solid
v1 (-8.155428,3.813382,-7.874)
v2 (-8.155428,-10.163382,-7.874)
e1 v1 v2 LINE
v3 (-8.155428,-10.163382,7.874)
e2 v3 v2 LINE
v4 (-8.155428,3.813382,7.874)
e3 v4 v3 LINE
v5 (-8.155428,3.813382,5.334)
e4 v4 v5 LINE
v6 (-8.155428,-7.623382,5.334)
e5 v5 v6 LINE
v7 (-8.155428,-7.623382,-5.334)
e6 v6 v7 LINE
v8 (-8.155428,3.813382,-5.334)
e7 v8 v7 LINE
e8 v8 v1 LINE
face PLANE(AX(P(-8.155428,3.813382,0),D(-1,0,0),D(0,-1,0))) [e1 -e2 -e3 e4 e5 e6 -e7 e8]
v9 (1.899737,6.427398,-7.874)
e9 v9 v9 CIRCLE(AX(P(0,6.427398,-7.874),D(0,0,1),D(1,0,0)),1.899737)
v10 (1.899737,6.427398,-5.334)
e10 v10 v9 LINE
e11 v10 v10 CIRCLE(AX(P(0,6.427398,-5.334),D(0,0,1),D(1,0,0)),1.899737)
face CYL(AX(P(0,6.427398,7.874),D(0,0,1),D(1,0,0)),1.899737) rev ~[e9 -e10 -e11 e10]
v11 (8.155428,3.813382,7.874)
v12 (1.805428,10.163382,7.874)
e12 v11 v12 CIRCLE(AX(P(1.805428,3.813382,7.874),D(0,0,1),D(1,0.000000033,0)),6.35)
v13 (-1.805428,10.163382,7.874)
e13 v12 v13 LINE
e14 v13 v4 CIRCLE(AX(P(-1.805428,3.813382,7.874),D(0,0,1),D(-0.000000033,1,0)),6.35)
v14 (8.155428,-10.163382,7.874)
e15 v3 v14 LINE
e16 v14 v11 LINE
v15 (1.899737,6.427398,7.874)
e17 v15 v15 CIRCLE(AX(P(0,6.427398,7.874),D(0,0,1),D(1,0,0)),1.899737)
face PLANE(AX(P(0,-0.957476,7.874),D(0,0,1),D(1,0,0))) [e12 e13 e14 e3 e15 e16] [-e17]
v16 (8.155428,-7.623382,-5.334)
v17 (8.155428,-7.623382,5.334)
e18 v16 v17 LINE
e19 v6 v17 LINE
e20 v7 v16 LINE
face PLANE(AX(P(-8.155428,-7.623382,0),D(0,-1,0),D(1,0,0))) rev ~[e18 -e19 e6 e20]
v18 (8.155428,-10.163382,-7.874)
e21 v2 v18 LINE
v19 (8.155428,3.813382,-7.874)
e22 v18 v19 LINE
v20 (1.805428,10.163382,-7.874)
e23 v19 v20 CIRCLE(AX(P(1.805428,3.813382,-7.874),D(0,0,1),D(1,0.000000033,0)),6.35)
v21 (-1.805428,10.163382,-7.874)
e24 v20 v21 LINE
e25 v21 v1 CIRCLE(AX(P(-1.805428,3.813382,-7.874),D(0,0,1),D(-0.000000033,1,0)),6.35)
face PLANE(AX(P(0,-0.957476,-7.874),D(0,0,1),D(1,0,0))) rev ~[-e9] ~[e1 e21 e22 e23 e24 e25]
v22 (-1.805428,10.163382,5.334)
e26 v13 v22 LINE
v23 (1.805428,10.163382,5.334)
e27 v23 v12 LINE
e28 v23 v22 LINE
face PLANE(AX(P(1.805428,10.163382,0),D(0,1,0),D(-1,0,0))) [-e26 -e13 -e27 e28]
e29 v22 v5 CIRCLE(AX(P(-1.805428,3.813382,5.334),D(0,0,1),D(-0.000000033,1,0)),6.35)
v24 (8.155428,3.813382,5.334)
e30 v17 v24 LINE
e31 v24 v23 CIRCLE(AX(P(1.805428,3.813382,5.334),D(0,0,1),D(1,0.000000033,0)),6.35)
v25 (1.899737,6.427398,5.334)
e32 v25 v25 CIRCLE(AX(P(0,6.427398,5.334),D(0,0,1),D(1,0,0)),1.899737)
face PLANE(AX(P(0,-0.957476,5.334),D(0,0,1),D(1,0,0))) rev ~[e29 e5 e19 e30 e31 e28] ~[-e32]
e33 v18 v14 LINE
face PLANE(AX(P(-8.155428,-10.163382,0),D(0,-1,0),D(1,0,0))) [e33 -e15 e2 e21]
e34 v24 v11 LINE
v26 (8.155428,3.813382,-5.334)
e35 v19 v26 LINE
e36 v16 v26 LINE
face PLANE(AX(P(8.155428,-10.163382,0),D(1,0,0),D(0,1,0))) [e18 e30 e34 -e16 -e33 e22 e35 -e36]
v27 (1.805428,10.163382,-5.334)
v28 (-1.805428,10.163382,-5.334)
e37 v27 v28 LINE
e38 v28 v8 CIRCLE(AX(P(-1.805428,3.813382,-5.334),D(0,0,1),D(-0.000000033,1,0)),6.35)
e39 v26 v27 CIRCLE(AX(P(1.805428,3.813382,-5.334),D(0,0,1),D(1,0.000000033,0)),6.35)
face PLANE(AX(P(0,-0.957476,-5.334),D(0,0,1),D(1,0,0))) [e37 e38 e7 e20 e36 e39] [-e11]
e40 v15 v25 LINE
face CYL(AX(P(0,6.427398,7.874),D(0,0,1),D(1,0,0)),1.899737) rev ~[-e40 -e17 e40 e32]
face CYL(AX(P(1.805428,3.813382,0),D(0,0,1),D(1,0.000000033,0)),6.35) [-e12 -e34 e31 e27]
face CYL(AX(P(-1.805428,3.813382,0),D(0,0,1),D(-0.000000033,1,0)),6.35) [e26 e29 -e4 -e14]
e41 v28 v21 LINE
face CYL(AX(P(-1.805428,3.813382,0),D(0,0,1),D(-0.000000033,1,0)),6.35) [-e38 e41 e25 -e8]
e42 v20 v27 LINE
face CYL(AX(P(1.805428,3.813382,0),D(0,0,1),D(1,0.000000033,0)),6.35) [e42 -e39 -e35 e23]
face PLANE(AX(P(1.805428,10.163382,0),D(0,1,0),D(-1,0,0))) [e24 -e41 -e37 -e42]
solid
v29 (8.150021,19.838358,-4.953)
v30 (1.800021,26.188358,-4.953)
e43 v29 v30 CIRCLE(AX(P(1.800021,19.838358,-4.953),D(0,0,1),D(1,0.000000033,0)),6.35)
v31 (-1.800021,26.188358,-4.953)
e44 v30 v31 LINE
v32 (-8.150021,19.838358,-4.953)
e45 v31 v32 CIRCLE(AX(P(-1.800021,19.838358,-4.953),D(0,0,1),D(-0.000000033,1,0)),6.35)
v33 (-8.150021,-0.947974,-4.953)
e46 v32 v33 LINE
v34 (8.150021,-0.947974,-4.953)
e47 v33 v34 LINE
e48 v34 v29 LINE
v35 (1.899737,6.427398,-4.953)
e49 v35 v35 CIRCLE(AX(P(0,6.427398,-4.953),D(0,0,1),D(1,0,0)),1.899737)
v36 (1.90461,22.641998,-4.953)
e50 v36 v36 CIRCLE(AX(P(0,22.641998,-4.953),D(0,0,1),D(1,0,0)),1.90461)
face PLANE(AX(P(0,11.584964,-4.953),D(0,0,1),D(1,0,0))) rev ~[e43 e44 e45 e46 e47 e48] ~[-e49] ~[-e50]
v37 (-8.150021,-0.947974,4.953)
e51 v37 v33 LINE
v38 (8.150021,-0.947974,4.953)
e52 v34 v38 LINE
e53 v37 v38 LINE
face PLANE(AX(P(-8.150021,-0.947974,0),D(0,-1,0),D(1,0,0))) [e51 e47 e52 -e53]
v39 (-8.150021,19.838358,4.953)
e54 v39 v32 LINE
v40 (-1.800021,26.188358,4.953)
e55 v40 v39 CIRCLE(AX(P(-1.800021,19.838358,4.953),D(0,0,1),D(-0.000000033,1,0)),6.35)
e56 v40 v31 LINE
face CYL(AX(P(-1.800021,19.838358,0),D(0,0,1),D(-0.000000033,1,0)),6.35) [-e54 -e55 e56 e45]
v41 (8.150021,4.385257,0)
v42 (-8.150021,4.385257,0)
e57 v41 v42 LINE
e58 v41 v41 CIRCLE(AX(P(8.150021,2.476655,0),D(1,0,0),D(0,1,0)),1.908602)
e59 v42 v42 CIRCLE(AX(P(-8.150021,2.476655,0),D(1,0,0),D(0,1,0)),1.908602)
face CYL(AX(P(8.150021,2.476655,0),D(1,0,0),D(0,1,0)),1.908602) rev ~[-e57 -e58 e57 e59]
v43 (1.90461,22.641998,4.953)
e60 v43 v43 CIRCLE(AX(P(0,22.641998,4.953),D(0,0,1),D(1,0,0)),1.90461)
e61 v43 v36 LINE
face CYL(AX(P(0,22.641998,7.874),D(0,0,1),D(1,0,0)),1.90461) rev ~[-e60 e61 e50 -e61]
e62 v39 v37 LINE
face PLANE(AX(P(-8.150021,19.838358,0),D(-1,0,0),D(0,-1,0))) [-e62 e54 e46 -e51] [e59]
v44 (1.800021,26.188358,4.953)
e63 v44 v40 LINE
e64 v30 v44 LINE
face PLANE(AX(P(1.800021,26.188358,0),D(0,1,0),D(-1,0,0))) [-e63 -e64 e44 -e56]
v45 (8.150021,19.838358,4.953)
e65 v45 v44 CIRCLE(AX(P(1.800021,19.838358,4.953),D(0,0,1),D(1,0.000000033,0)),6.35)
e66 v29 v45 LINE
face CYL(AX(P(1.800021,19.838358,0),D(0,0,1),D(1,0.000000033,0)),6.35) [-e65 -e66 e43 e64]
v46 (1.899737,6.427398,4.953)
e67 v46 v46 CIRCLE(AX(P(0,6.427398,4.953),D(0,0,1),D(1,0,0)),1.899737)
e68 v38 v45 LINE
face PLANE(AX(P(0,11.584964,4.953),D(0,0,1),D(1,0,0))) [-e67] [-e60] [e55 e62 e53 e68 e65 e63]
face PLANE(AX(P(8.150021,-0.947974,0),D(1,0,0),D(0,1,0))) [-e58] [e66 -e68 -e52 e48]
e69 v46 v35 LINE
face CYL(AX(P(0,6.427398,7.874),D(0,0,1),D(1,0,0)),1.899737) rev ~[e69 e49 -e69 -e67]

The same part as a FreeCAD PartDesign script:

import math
import FreeCAD as App
import Part
import Sketcher
Q = App.Units.Quantity


def faces_at(feature, points):
    """Names of the faces that lie closest to the given points."""
    faces = feature.Shape.Faces
    near = lambda p: min(range(len(faces)), key=lambda i: faces[i].distToShape(Part.Vertex(*p))[0])
    return sorted({f"Face{near(p) + 1}" for p in points})

doc = App.newDocument("Part")
body = doc.addObject("PartDesign::Body", "Body")

# Sketch on XY plane
sketch1 = body.newObject("Sketcher::SketchObject", "Sketch")
sketch1.AttachmentSupport = (doc.getObject("XY_Plane"), [""])
sketch1.MapMode = "FlatFace"
sketch1.addGeometry([
    Part.LineSegment(App.Vector(-8.2, -10.2, 0), App.Vector(8.2, -10.2, 0)),  # 0
    Part.LineSegment(App.Vector(8.2, -10.2, 0), App.Vector(8.2, 3.8, 0)),  # 1
    Part.ArcOfCircle(Part.Circle(App.Vector(1.8, 3.8, 0), App.Vector(0, 0, 1), 6.4), math.radians(0), math.radians(90)),  # 2
    Part.LineSegment(App.Vector(1.8, 10.2, 0), App.Vector(-1.8, 10.2, 0)),  # 3
    Part.ArcOfCircle(Part.Circle(App.Vector(-1.8, 3.8, 0), App.Vector(0, 0, 1), 6.4), math.radians(90), math.radians(180)),  # 4
    Part.LineSegment(App.Vector(-8.2, 3.8, 0), App.Vector(-8.2, -10.2, 0)),  # 5
], False)
sketch1.addConstraint([
    Sketcher.Constraint("Coincident", 0, 2, 1, 1),
    Sketcher.Constraint("Tangent", 1, 2, 2, 1),
    Sketcher.Constraint("Tangent", 2, 2, 3, 1),
    Sketcher.Constraint("Tangent", 3, 2, 4, 1),
    Sketcher.Constraint("Tangent", 4, 2, 5, 1),
    Sketcher.Constraint("Coincident", 5, 2, 0, 1),
    Sketcher.Constraint("Horizontal", 0),
    Sketcher.Constraint("Vertical", 1),
    Sketcher.Constraint("Horizontal", 3),
    Sketcher.Constraint("Vertical", 5),
    Sketcher.Constraint("Equal", 2, 4),
    Sketcher.Constraint("Radius", 2, Q("0.25 in")),
    Sketcher.Constraint("DistanceX", 0, 1, 0, 2, 16.310856),
    Sketcher.Constraint("DistanceY", 1, 1, 1, 2, 13.976764),
    Sketcher.Constraint("DistanceY", -1, 1, 2, 3, 3.813382),
    Sketcher.Constraint("DistanceX", -1, 1, 2, 2, 1.805428),
])
pad1 = body.newObject("PartDesign::Pad", "Pad")
pad1.Profile = sketch1
pad1.Type = "TwoLengths"
pad1.Length = Q("0.31 in")
pad1.Length2 = Q("0.31 in")
doc.recompute()

thickness = body.newObject("PartDesign::Thickness", "Thickness")
thickness.Base = (pad1, faces_at(pad1, [
    (8.155, -3.175, 0),
    (6.296, 8.304, 0),
    (0, 10.163, 0),
    (-6.296, 8.304, 0),
    (-8.155, -3.175, 0),
]))
thickness.Value = Q("0.1 in")
thickness.Reversed = True
thickness.Join = "Arc"
body2 = doc.addObject("PartDesign::Body", "Body001")

# Sketch on XY plane
sketch2 = body2.newObject("Sketcher::SketchObject", "Sketch001")
sketch2.AttachmentSupport = (doc.getObject("XY_Plane001"), [""])
sketch2.MapMode = "FlatFace"
sketch2.addGeometry([
    Part.LineSegment(App.Vector(-8.2, -0.9, 0), App.Vector(8.2, -0.9, 0)),  # 0
    Part.LineSegment(App.Vector(8.2, -0.9, 0), App.Vector(8.2, 19.8, 0)),  # 1
    Part.ArcOfCircle(Part.Circle(App.Vector(1.8, 19.8, 0), App.Vector(0, 0, 1), 6.4), math.radians(0), math.radians(90)),  # 2
    Part.LineSegment(App.Vector(1.8, 26.2, 0), App.Vector(-1.8, 26.2, 0)),  # 3
    Part.ArcOfCircle(Part.Circle(App.Vector(-1.8, 19.8, 0), App.Vector(0, 0, 1), 6.4), math.radians(90), math.radians(180)),  # 4
    Part.LineSegment(App.Vector(-8.2, 19.8, 0), App.Vector(-8.2, -0.9, 0)),  # 5
], False)
sketch2.addConstraint([
    Sketcher.Constraint("Coincident", 0, 2, 1, 1),
    Sketcher.Constraint("Tangent", 1, 2, 2, 1),
    Sketcher.Constraint("Tangent", 2, 2, 3, 1),
    Sketcher.Constraint("Tangent", 3, 2, 4, 1),
    Sketcher.Constraint("Tangent", 4, 2, 5, 1),
    Sketcher.Constraint("Coincident", 5, 2, 0, 1),
    Sketcher.Constraint("Horizontal", 0),
    Sketcher.Constraint("Vertical", 1),
    Sketcher.Constraint("Horizontal", 3),
    Sketcher.Constraint("Vertical", 5),
    Sketcher.Constraint("Equal", 2, 4),
    Sketcher.Constraint("Radius", 2, Q("0.25 in")),
    Sketcher.Constraint("DistanceY", 1, 1, 1, 2, 20.786332),
    Sketcher.Constraint("DistanceX", 0, 1, 0, 2, 16.300042),
    Sketcher.Constraint("DistanceX", -1, 1, 2, 3, 1.800021),
    Sketcher.Constraint("DistanceY", -1, 1, 3, 2, 26.188358),
])
pad2 = body2.newObject("PartDesign::Pad", "Pad001")
pad2.Profile = sketch2
pad2.Type = "TwoLengths"
pad2.Length = Q("0.195 in")
pad2.Length2 = Q("0.195 in")
body3 = doc.addObject("PartDesign::Body", "Body002")

# Sketch on XY plane
sketch3 = body3.newObject("Sketcher::SketchObject", "Sketch002")
sketch3.AttachmentSupport = (doc.getObject("XY_Plane002"), [""])
sketch3.MapMode = "FlatFace"
sketch3.AttachmentOffset = App.Placement(App.Vector(0, 0, 0.31 * 25.4), App.Rotation())
sketch3.addGeometry(Part.Circle(App.Vector(0, 6.4, 0), App.Vector(0, 0, 1), 1.9), False)
sketch3.addConstraint([
    Sketcher.Constraint("PointOnObject", 0, 3, -2),
    Sketcher.Constraint("Diameter", 0, 3.799474),
    Sketcher.Constraint("DistanceY", -1, 1, 0, 3, 6.427398),
])
pad3 = body3.newObject("PartDesign::Pad", "Pad002")
pad3.Profile = sketch3
pad3.Length = Q("0.67 in")
pad3.Reversed = True
doc.recompute()

body4 = doc.addObject("PartDesign::Body", "Body003")
body4.BaseFeature = body3
boolean = body.newObject("PartDesign::Boolean", "Boolean")
boolean.Type = "Cut"
boolean.addObjects([body4])
doc.recompute()

boolean2 = body2.newObject("PartDesign::Boolean", "Boolean001")
boolean2.Type = "Cut"
boolean2.addObjects([body3])

# Sketch on XY plane
sketch4 = body2.newObject("Sketcher::SketchObject", "Sketch003")
sketch4.AttachmentSupport = (doc.getObject("XY_Plane001"), [""])
sketch4.MapMode = "FlatFace"
sketch4.AttachmentOffset = App.Placement(App.Vector(0, 0, 0.31 * 25.4), App.Rotation())
sketch4.addGeometry(Part.Circle(App.Vector(0, 22.6, 0), App.Vector(0, 0, 1), 1.9), False)
sketch4.addConstraint([
    Sketcher.Constraint("PointOnObject", 0, 3, -2),
    Sketcher.Constraint("Diameter", 0, 3.80922),
    Sketcher.Constraint("DistanceY", -1, 1, 0, 3, 22.641998),
])
pocket1 = body2.newObject("PartDesign::Pocket", "Pocket")
pocket1.Profile = sketch4
pocket1.Length = Q("0.59 in")

# Sketch on YZ plane
sketch5 = body2.newObject("Sketcher::SketchObject", "Sketch004")
sketch5.AttachmentSupport = (doc.getObject("YZ_Plane001"), [""])
sketch5.MapMode = "FlatFace"
sketch5.AttachmentOffset = App.Placement(App.Vector(0, 0, 8.150021), App.Rotation())
sketch5.addGeometry(Part.Circle(App.Vector(2.5, 0, 0), App.Vector(0, 0, 1), 1.9), False)
sketch5.addConstraint([
    Sketcher.Constraint("PointOnObject", 0, 3, -1),
    Sketcher.Constraint("Diameter", 0, 3.817204),
    Sketcher.Constraint("DistanceX", -1, 1, 0, 3, 2.476655),
])
pocket2 = body2.newObject("PartDesign::Pocket", "Pocket001")
pocket2.Profile = sketch5
pocket2.Length = Q("0.68 in")

doc.recompute()
